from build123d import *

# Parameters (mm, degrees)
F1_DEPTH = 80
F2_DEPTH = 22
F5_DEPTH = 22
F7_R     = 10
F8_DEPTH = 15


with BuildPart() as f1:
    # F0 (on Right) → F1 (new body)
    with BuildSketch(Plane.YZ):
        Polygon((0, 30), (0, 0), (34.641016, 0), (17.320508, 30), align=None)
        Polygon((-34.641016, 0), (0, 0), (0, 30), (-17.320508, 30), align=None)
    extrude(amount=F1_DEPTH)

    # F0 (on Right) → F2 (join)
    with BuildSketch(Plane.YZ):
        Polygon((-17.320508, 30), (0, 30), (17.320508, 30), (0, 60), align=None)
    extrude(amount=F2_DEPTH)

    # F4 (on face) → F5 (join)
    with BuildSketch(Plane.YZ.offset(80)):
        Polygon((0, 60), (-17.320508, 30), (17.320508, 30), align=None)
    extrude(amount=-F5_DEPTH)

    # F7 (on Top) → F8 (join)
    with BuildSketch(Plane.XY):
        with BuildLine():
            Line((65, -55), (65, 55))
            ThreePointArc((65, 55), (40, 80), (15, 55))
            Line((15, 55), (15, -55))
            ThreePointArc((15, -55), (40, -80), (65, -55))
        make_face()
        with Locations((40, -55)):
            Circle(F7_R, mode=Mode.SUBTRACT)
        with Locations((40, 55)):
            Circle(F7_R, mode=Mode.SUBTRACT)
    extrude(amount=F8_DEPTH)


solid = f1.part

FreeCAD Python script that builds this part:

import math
import FreeCAD as App
import Part
import Sketcher
Q = App.Units.Quantity

doc = App.newDocument("Part")
body = doc.addObject("PartDesign::Body", "Body")

sketch1 = body.newObject("Sketcher::SketchObject", "Sketch")
sketch1.AttachmentSupport = (doc.getObject("YZ_Plane"), [""])
sketch1.MapMode = "FlatFace"
sketch1.addGeometry([
    Part.LineSegment(App.Vector(35, 0, 0), App.Vector(17, 30, 0)),
    Part.LineSegment(App.Vector(17, 30, 0), App.Vector(-17, 30, 0)),
    Part.LineSegment(App.Vector(-17, 30, 0), App.Vector(-35, 0, 0)),
    Part.LineSegment(App.Vector(-35, 0, 0), App.Vector(35, 0, 0)),
], False)
sketch1.addConstraint([
    Sketcher.Constraint("Coincident", 0, 2, 1, 1),
    Sketcher.Constraint("Coincident", 1, 2, 2, 1),
    Sketcher.Constraint("Coincident", 2, 2, 3, 1),
    Sketcher.Constraint("Coincident", 3, 2, 0, 1),
    Sketcher.Constraint("Horizontal", 1),
    Sketcher.Constraint("Horizontal", 3),
    Sketcher.Constraint("Symmetric", 2, 2, 3, 2, -1, 1),
    Sketcher.Constraint("Equal", 0, 2),
    Sketcher.Constraint("Angle", 0, Q("120 deg")),
    Sketcher.Constraint("DistanceY", -1, 1, 0, 2, Q("30 mm")),
    Sketcher.Constraint("DistanceX", 3, 1, 3, 2, Q("69.282032 mm")),
])
pad1 = body.newObject("PartDesign::Pad", "Pad")
pad1.Profile = sketch1
pad1.Length = 80

sketch2 = body.newObject("Sketcher::SketchObject", "Sketch001")
sketch2.AttachmentSupport = (doc.getObject("YZ_Plane"), [""])
sketch2.MapMode = "FlatFace"
sketch2.addGeometry([
    Part.LineSegment(App.Vector(-17, 30, 0), App.Vector(17, 30, 0)),
    Part.LineSegment(App.Vector(17, 30, 0), App.Vector(0, 60, 0)),
    Part.LineSegment(App.Vector(0, 60, 0), App.Vector(-17, 30, 0)),
], False)
sketch2.addConstraint([
    Sketcher.Constraint("Coincident", 0, 2, 1, 1),
    Sketcher.Constraint("Coincident", 1, 2, 2, 1),
    Sketcher.Constraint("Coincident", 2, 2, 0, 1),
    Sketcher.Constraint("Horizontal", 0),
    Sketcher.Constraint("PointOnObject", 1, 2, -2),
    Sketcher.Constraint("Equal", 1, 2),
    Sketcher.Constraint("Angle", 1, Q("120 deg")),
    Sketcher.Constraint("DistanceY", -1, 1, 0, 2, Q("30 mm")),
    Sketcher.Constraint("DistanceY", -1, 1, 1, 2, Q("60 mm")),
])
pad2 = body.newObject("PartDesign::Pad", "Pad001")
pad2.Profile = sketch2
pad2.Length = 22

sketch3 = body.newObject("Sketcher::SketchObject", "Sketch002")
sketch3.AttachmentSupport = (doc.getObject("YZ_Plane"), [""])
sketch3.MapMode = "FlatFace"
sketch3.AttachmentOffset = App.Placement(App.Vector(0, 0, 80), App.Rotation())
sketch3.addGeometry([
    Part.LineSegment(App.Vector(0, 60, 0), App.Vector(-17, 30, 0)),
    Part.LineSegment(App.Vector(-17, 30, 0), App.Vector(17, 30, 0)),
    Part.LineSegment(App.Vector(17, 30, 0), App.Vector(0, 60, 0)),
], False)
sketch3.addConstraint([
    Sketcher.Constraint("Coincident", 0, 2, 1, 1),
    Sketcher.Constraint("Coincident", 1, 2, 2, 1),
    Sketcher.Constraint("Coincident", 2, 2, 0, 1),
    Sketcher.Constraint("Horizontal", 1),
    Sketcher.Constraint("PointOnObject", 2, 2, -2),
    Sketcher.Constraint("Equal", 0, 2),
    Sketcher.Constraint("Angle", 0, Q("-120 deg")),
    Sketcher.Constraint("DistanceY", -1, 1, 0, 2, Q("30 mm")),
    Sketcher.Constraint("DistanceY", -1, 1, 2, 2, Q("60 mm")),
])
pad3 = body.newObject("PartDesign::Pad", "Pad002")
pad3.Profile = sketch3
pad3.Length = 22
pad3.Reversed = True

sketch4 = body.newObject("Sketcher::SketchObject", "Sketch003")
sketch4.AttachmentSupport = (doc.getObject("XY_Plane"), [""])
sketch4.MapMode = "FlatFace"
sketch4.addGeometry([
    Part.LineSegment(App.Vector(65, -55, 0), App.Vector(65, 55, 0)),
    Part.ArcOfCircle(Part.Circle(App.Vector(40, 55, 0), App.Vector(0, 0, 1), 25), math.radians(0), math.radians(180)),
    Part.LineSegment(App.Vector(15, 55, 0), App.Vector(15, -55, 0)),
    Part.ArcOfCircle(Part.Circle(App.Vector(40, -55, 0), App.Vector(0, 0, 1), 25), math.radians(180), math.radians(360)),
    Part.Circle(App.Vector(40, -55, 0), App.Vector(0, 0, 1), 10),
    Part.Circle(App.Vector(40, 55, 0), App.Vector(0, 0, 1), 10),
], False)
sketch4.addConstraint([
    Sketcher.Constraint("Tangent", 0, 2, 1, 1),
    Sketcher.Constraint("Tangent", 1, 2, 2, 1),
    Sketcher.Constraint("Tangent", 2, 2, 3, 1),
    Sketcher.Constraint("Tangent", 3, 2, 0, 1),
    Sketcher.Constraint("Vertical", 0),
    Sketcher.Constraint("Vertical", 2),
    Sketcher.Constraint("Coincident", 4, 3, 3, 3),
    Sketcher.Constraint("Coincident", 5, 3, 1, 3),
    Sketcher.Constraint("Equal", 4, 5),
    Sketcher.Constraint("Diameter", 4, Q("20 mm")),
    Sketcher.Constraint("Radius", 1, Q("25 mm")),
    Sketcher.Constraint("DistanceY", 0, 1, 0, 2, Q("110 mm")),
    Sketcher.Constraint("DistanceX", -1, 1, 1, 3, Q("40 mm")),
    Sketcher.Constraint("DistanceY", -1, 1, 1, 3, Q("55 mm")),
])
pad4 = body.newObject("PartDesign::Pad", "Pad003")
pad4.Profile = sketch4
pad4.Length = 15

doc.recompute()
